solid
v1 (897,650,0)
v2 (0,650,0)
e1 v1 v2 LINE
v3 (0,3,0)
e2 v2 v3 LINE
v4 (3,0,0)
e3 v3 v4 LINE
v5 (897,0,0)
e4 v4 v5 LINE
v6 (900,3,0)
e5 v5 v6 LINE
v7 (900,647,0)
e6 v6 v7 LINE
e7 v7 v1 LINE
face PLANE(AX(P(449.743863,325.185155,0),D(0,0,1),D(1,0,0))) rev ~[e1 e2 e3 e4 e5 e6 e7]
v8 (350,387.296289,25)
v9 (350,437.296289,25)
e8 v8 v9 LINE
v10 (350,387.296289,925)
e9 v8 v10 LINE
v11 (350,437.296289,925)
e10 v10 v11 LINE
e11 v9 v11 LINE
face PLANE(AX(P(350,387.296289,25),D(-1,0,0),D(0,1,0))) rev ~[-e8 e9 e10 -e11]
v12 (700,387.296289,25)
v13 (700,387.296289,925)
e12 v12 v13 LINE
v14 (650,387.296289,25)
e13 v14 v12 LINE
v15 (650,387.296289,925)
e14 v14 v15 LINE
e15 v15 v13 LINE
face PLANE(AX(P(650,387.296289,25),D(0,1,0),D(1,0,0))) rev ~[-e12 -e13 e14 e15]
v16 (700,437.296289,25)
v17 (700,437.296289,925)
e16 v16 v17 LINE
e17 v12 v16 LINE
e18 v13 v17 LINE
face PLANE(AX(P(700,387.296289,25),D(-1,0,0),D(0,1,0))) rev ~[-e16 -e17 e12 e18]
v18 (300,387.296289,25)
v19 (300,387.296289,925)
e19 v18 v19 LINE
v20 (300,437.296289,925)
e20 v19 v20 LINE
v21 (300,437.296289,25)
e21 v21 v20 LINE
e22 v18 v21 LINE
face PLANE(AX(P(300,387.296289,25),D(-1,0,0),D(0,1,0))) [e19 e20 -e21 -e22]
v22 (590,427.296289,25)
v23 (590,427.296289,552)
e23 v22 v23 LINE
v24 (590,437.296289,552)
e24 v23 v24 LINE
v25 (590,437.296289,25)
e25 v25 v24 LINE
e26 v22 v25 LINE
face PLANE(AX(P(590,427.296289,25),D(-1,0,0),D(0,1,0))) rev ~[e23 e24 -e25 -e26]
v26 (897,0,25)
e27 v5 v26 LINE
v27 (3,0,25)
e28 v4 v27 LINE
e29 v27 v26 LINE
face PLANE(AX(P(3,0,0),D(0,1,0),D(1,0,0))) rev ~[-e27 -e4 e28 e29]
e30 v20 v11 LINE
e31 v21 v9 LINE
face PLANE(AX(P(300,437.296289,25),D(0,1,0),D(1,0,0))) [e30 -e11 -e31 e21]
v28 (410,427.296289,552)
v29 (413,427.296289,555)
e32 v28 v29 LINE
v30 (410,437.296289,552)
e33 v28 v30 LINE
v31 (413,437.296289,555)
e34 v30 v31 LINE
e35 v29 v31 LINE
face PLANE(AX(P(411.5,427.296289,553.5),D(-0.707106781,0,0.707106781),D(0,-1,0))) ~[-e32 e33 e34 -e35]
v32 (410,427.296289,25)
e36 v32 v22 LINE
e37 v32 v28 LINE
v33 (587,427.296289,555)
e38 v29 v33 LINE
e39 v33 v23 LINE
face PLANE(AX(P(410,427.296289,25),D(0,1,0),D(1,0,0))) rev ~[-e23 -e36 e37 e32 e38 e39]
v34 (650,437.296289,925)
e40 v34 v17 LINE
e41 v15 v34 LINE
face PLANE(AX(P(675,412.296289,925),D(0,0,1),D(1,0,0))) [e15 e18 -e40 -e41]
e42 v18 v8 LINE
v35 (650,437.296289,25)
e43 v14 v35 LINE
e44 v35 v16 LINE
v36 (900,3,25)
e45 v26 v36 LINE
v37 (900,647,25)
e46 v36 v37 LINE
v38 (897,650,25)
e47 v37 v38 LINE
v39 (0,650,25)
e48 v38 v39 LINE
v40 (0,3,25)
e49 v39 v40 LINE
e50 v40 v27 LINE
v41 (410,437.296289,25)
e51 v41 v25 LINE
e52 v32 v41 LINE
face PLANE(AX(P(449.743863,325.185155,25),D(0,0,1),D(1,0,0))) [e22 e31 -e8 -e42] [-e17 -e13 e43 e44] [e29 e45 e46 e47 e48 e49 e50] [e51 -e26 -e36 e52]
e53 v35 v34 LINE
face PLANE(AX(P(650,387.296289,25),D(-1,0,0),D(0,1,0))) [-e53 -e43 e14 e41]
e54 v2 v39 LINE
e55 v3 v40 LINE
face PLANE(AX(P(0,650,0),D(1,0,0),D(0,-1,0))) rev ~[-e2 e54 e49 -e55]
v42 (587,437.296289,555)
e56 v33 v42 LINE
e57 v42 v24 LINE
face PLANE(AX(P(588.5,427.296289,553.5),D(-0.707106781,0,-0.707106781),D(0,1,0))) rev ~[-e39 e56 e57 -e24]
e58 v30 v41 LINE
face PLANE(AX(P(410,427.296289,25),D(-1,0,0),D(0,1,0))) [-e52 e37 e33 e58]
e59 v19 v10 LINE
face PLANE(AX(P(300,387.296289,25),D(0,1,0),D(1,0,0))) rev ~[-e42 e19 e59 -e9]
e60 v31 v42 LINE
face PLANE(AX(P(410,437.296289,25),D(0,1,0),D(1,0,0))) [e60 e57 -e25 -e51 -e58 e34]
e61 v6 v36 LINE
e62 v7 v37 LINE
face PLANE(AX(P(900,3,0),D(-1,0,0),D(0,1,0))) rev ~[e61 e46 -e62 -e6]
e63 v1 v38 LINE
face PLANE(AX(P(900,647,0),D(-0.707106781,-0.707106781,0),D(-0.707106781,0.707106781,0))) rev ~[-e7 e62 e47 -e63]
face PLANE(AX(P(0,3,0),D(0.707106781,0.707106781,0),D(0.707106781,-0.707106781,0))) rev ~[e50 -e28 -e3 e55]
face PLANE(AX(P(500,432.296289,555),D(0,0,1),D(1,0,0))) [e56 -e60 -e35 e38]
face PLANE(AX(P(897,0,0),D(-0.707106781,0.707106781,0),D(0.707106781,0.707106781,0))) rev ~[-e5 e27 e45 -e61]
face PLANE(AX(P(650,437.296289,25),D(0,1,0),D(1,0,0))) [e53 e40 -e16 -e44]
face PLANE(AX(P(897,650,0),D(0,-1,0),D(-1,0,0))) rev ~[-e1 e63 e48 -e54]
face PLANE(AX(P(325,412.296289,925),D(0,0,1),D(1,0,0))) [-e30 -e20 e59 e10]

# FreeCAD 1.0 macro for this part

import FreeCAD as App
import Part
import Sketcher
Q = App.Units.Quantity


def edges_at(feature, points):
    """Names of the edges that pass closest to the given points."""
    edges = feature.Shape.Edges
    near = lambda p: min(range(len(edges)), key=lambda i: edges[i].distToShape(Part.Vertex(*p))[0])
    return sorted({f"Edge{near(p) + 1}" for p in points})


def add_polygon(sketch, points):
    """Adds a closed chain of lines whose ends are joined by coincident constraints."""
    first, n = sketch.GeometryCount, len(points)
    for a, b in zip(points, points[1:] + points[:1]):
        sketch.addGeometry(Part.LineSegment(App.Vector(*a, 0), App.Vector(*b, 0)), False)
    for i in range(n):
        sketch.addConstraint(Sketcher.Constraint("Coincident", first + i, 2, first + (i + 1) % n, 1))

doc = App.newDocument("Part")
body = doc.addObject("PartDesign::Body", "Body")

sketch1 = doc.addObject("Sketcher::SketchObject", "Sketch")
body.addObject(sketch1)
sketch1.AttachmentSupport = (doc.XY_Plane, [""])
sketch1.MapMode = "FlatFace"
add_polygon(sketch1, [(0, 3), (3, 0), (897, 0), (900, 3), (900, 647), (897, 650), (0, 650)])
sketch1.addConstraint(Sketcher.Constraint("Horizontal", 1))
sketch1.addConstraint(Sketcher.Constraint("Vertical", 3))
sketch1.addConstraint(Sketcher.Constraint("Horizontal", 5))
sketch1.addConstraint(Sketcher.Constraint("Vertical", 6))
sketch1.addConstraint(Sketcher.Constraint("PointOnObject", 0, 2, -1))
sketch1.addConstraint(Sketcher.Constraint("PointOnObject", 5, 2, -2))
sketch1.addConstraint(Sketcher.Constraint("Perpendicular", 0, 2))
sketch1.addConstraint(Sketcher.Constraint("Perpendicular", 2, 4))
sketch1.addConstraint(Sketcher.Constraint("Horizontal", 2, 2, 6, 2))
sketch1.addConstraint(Sketcher.Constraint("Vertical", 1, 2, 4, 2))
sketch1.addConstraint(Sketcher.Constraint("Equal", 0, 2))
sketch1.addConstraint(Sketcher.Constraint("DistanceX", 1, 1, 1, 2, Q("894 mm")))
sketch1.addConstraint(Sketcher.Constraint("DistanceX", 5, 2, 5, 1, Q("897 mm")))
sketch1.addConstraint(Sketcher.Constraint("DistanceY", 3, 1, 3, 2, Q("644 mm")))
pad1 = doc.addObject("PartDesign::Pad", "Pad")
body.addObject(pad1)
pad1.Profile = sketch1
pad1.Length = 25

sketch2 = doc.addObject("Sketcher::SketchObject", "Sketch001")
body.addObject(sketch2)
sketch2.AttachmentSupport = (doc.XY_Plane, [""])
sketch2.MapMode = "FlatFace"
sketch2.AttachmentOffset = App.Placement(App.Vector(0, 0, 25), App.Rotation())
add_polygon(sketch2, [(650, 437), (650, 387), (700, 387), (700, 437)])
sketch2.addConstraint(Sketcher.Constraint("Vertical", 0))
sketch2.addConstraint(Sketcher.Constraint("Horizontal", 1))
sketch2.addConstraint(Sketcher.Constraint("Vertical", 2))
sketch2.addConstraint(Sketcher.Constraint("Horizontal", 3))
sketch2.addConstraint(Sketcher.Constraint("Equal", 3, 0))
sketch2.addConstraint(Sketcher.Constraint("DistanceX", 1, 1, 1, 2, Q("50 mm")))
sketch2.addConstraint(Sketcher.Constraint("DistanceX", -1, 1, 0, 2, Q("650 mm")))
sketch2.addConstraint(Sketcher.Constraint("DistanceY", -1, 1, 0, 2, Q("387.296289 mm")))
pad2 = doc.addObject("PartDesign::Pad", "Pad001")
body.addObject(pad2)
pad2.Profile = sketch2
pad2.Length = 900

sketch3 = doc.addObject("Sketcher::SketchObject", "Sketch002")
body.addObject(sketch3)
sketch3.AttachmentSupport = (doc.XY_Plane, [""])
sketch3.MapMode = "FlatFace"
sketch3.AttachmentOffset = App.Placement(App.Vector(0, 0, 25), App.Rotation())
add_polygon(sketch3, [(300, 437), (300, 387), (350, 387), (350, 437)])
sketch3.addConstraint(Sketcher.Constraint("Vertical", 0))
sketch3.addConstraint(Sketcher.Constraint("Horizontal", 1))
sketch3.addConstraint(Sketcher.Constraint("Vertical", 2))
sketch3.addConstraint(Sketcher.Constraint("Horizontal", 3))
sketch3.addConstraint(Sketcher.Constraint("Equal", 3, 0))
sketch3.addConstraint(Sketcher.Constraint("DistanceX", 1, 1, 1, 2, Q("50 mm")))
sketch3.addConstraint(Sketcher.Constraint("DistanceX", -1, 1, 0, 2, Q("300 mm")))
sketch3.addConstraint(Sketcher.Constraint("DistanceY", -1, 1, 0, 2, Q("387.296289 mm")))
pad3 = doc.addObject("PartDesign::Pad", "Pad002")
body.addObject(pad3)
pad3.Profile = sketch3
pad3.Length = 900

sketch4 = doc.addObject("Sketcher::SketchObject", "Sketch003")
body.addObject(sketch4)
sketch4.AttachmentSupport = (doc.XY_Plane, [""])
sketch4.MapMode = "FlatFace"
sketch4.AttachmentOffset = App.Placement(App.Vector(0, 0, 25), App.Rotation())
add_polygon(sketch4, [(410, 437), (410, 427), (590, 427), (590, 437)])
sketch4.addConstraint(Sketcher.Constraint("Vertical", 0))
sketch4.addConstraint(Sketcher.Constraint("Horizontal", 1))
sketch4.addConstraint(Sketcher.Constraint("Vertical", 2))
sketch4.addConstraint(Sketcher.Constraint("Horizontal", 3))
sketch4.addConstraint(Sketcher.Constraint("DistanceX", 1, 1, 1, 2, Q("180 mm")))
sketch4.addConstraint(Sketcher.Constraint("DistanceY", 0, 2, 0, 1, Q("10 mm")))
sketch4.addConstraint(Sketcher.Constraint("DistanceX", -1, 1, 0, 2, Q("410 mm")))
sketch4.addConstraint(Sketcher.Constraint("DistanceY", -1, 1, 0, 2, Q("427.296289 mm")))
pad4 = doc.addObject("PartDesign::Pad", "Pad003")
body.addObject(pad4)
pad4.Profile = sketch4
pad4.Length = 530

sketch5 = doc.addObject("Sketcher::SketchObject", "Sketch004")
body.addObject(sketch5)
sketch5.AttachmentSupport = (doc.XZ_Plane, [""])
sketch5.MapMode = "FlatFace"
sketch5.AttachmentOffset = App.Placement(App.Vector(0, 0, -427.296289), App.Rotation())
add_polygon(sketch5, [(410, 555), (410, 552), (413, 555)])
sketch5.addConstraint(Sketcher.Constraint("Vertical", 0))
sketch5.addConstraint(Sketcher.Constraint("Horizontal", 2))
sketch5.addConstraint(Sketcher.Constraint("Equal", 2, 0))
sketch5.addConstraint(Sketcher.Constraint("DistanceX", 2, 2, 2, 1, Q("3 mm")))
sketch5.addConstraint(Sketcher.Constraint("DistanceX", -1, 1, 0, 2, Q("410 mm")))
sketch5.addConstraint(Sketcher.Constraint("DistanceY", -1, 1, 0, 2, Q("552 mm")))
pad5 = doc.addObject("PartDesign::Pad", "Pad004")
body.addObject(pad5)
pad5.Profile = sketch5
pad5.Type = "UpToLast"
pad5.Reversed = True
doc.recompute()

chamfer = doc.addObject("PartDesign::Chamfer", "Chamfer")
body.addObject(chamfer)
chamfer.Base = (pad5, edges_at(pad5, [(410, 432.296, 555), (590, 432.296, 555)]))
chamfer.Size = 3

doc.recompute()
